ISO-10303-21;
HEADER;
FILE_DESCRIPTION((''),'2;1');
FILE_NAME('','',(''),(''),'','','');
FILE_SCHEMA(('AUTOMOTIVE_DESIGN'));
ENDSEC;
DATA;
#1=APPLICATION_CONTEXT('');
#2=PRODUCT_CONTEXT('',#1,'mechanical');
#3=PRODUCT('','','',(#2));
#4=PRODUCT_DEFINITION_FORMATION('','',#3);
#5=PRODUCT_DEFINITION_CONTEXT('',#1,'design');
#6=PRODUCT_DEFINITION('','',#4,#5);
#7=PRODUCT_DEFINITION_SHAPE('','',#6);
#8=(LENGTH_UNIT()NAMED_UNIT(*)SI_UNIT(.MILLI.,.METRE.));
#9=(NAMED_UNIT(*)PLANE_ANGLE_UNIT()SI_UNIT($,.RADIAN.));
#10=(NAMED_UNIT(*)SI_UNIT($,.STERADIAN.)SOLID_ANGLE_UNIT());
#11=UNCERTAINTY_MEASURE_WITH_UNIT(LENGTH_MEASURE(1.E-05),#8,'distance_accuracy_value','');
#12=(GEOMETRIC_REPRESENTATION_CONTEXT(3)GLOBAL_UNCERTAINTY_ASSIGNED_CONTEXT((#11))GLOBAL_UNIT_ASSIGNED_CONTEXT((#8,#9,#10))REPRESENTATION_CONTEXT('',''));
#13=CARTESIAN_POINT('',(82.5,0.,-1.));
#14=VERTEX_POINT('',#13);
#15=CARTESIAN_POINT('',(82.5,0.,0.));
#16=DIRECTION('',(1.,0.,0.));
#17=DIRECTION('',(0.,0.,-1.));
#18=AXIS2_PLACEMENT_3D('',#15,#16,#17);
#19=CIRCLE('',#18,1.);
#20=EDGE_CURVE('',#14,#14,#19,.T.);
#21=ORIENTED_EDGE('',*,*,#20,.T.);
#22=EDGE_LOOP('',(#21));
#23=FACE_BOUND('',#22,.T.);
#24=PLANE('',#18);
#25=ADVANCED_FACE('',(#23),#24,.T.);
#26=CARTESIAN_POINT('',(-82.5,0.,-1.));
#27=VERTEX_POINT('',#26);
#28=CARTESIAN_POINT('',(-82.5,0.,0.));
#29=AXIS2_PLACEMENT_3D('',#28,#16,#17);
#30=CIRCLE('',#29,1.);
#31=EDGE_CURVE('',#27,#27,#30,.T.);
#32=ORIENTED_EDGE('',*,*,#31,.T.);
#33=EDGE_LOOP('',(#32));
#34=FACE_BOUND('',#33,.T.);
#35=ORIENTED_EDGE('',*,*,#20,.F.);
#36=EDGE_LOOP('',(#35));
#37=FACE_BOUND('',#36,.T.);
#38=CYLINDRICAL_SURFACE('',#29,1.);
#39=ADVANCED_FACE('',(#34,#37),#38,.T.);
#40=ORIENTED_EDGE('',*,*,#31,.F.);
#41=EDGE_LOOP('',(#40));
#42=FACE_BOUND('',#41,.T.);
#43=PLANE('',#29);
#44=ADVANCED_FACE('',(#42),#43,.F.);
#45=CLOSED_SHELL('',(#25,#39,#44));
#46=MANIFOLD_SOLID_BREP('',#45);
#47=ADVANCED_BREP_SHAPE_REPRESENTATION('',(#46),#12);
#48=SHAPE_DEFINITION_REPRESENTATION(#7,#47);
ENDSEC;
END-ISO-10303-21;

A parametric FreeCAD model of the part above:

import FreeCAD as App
import Part
import Sketcher

V = App.Vector

doc = App.newDocument("Part")
body = doc.addObject("PartDesign::Body", "Body")

# Sketch on YZ plane
sketch1 = body.newObject("Sketcher::SketchObject", "Sketch")
sketch1.AttachmentSupport = (doc.getObject("YZ_Plane"), [""])
sketch1.MapMode = "FlatFace"
sketch1.addGeometry(Part.Circle(V(0, 0, 0), V(0, 0, 1), 1), False)
sketch1.addConstraint([
    Sketcher.Constraint("Coincident", 0, 3, -1, 1),
    Sketcher.Constraint("Diameter", 0, 2.0),
])
pad1 = body.newObject("PartDesign::Pad", "Pad")
pad1.Profile = sketch1
pad1.Type = "TwoLengths"
pad1.Length = 82.5
pad1.Length2 = 82.5

doc.recompute()
